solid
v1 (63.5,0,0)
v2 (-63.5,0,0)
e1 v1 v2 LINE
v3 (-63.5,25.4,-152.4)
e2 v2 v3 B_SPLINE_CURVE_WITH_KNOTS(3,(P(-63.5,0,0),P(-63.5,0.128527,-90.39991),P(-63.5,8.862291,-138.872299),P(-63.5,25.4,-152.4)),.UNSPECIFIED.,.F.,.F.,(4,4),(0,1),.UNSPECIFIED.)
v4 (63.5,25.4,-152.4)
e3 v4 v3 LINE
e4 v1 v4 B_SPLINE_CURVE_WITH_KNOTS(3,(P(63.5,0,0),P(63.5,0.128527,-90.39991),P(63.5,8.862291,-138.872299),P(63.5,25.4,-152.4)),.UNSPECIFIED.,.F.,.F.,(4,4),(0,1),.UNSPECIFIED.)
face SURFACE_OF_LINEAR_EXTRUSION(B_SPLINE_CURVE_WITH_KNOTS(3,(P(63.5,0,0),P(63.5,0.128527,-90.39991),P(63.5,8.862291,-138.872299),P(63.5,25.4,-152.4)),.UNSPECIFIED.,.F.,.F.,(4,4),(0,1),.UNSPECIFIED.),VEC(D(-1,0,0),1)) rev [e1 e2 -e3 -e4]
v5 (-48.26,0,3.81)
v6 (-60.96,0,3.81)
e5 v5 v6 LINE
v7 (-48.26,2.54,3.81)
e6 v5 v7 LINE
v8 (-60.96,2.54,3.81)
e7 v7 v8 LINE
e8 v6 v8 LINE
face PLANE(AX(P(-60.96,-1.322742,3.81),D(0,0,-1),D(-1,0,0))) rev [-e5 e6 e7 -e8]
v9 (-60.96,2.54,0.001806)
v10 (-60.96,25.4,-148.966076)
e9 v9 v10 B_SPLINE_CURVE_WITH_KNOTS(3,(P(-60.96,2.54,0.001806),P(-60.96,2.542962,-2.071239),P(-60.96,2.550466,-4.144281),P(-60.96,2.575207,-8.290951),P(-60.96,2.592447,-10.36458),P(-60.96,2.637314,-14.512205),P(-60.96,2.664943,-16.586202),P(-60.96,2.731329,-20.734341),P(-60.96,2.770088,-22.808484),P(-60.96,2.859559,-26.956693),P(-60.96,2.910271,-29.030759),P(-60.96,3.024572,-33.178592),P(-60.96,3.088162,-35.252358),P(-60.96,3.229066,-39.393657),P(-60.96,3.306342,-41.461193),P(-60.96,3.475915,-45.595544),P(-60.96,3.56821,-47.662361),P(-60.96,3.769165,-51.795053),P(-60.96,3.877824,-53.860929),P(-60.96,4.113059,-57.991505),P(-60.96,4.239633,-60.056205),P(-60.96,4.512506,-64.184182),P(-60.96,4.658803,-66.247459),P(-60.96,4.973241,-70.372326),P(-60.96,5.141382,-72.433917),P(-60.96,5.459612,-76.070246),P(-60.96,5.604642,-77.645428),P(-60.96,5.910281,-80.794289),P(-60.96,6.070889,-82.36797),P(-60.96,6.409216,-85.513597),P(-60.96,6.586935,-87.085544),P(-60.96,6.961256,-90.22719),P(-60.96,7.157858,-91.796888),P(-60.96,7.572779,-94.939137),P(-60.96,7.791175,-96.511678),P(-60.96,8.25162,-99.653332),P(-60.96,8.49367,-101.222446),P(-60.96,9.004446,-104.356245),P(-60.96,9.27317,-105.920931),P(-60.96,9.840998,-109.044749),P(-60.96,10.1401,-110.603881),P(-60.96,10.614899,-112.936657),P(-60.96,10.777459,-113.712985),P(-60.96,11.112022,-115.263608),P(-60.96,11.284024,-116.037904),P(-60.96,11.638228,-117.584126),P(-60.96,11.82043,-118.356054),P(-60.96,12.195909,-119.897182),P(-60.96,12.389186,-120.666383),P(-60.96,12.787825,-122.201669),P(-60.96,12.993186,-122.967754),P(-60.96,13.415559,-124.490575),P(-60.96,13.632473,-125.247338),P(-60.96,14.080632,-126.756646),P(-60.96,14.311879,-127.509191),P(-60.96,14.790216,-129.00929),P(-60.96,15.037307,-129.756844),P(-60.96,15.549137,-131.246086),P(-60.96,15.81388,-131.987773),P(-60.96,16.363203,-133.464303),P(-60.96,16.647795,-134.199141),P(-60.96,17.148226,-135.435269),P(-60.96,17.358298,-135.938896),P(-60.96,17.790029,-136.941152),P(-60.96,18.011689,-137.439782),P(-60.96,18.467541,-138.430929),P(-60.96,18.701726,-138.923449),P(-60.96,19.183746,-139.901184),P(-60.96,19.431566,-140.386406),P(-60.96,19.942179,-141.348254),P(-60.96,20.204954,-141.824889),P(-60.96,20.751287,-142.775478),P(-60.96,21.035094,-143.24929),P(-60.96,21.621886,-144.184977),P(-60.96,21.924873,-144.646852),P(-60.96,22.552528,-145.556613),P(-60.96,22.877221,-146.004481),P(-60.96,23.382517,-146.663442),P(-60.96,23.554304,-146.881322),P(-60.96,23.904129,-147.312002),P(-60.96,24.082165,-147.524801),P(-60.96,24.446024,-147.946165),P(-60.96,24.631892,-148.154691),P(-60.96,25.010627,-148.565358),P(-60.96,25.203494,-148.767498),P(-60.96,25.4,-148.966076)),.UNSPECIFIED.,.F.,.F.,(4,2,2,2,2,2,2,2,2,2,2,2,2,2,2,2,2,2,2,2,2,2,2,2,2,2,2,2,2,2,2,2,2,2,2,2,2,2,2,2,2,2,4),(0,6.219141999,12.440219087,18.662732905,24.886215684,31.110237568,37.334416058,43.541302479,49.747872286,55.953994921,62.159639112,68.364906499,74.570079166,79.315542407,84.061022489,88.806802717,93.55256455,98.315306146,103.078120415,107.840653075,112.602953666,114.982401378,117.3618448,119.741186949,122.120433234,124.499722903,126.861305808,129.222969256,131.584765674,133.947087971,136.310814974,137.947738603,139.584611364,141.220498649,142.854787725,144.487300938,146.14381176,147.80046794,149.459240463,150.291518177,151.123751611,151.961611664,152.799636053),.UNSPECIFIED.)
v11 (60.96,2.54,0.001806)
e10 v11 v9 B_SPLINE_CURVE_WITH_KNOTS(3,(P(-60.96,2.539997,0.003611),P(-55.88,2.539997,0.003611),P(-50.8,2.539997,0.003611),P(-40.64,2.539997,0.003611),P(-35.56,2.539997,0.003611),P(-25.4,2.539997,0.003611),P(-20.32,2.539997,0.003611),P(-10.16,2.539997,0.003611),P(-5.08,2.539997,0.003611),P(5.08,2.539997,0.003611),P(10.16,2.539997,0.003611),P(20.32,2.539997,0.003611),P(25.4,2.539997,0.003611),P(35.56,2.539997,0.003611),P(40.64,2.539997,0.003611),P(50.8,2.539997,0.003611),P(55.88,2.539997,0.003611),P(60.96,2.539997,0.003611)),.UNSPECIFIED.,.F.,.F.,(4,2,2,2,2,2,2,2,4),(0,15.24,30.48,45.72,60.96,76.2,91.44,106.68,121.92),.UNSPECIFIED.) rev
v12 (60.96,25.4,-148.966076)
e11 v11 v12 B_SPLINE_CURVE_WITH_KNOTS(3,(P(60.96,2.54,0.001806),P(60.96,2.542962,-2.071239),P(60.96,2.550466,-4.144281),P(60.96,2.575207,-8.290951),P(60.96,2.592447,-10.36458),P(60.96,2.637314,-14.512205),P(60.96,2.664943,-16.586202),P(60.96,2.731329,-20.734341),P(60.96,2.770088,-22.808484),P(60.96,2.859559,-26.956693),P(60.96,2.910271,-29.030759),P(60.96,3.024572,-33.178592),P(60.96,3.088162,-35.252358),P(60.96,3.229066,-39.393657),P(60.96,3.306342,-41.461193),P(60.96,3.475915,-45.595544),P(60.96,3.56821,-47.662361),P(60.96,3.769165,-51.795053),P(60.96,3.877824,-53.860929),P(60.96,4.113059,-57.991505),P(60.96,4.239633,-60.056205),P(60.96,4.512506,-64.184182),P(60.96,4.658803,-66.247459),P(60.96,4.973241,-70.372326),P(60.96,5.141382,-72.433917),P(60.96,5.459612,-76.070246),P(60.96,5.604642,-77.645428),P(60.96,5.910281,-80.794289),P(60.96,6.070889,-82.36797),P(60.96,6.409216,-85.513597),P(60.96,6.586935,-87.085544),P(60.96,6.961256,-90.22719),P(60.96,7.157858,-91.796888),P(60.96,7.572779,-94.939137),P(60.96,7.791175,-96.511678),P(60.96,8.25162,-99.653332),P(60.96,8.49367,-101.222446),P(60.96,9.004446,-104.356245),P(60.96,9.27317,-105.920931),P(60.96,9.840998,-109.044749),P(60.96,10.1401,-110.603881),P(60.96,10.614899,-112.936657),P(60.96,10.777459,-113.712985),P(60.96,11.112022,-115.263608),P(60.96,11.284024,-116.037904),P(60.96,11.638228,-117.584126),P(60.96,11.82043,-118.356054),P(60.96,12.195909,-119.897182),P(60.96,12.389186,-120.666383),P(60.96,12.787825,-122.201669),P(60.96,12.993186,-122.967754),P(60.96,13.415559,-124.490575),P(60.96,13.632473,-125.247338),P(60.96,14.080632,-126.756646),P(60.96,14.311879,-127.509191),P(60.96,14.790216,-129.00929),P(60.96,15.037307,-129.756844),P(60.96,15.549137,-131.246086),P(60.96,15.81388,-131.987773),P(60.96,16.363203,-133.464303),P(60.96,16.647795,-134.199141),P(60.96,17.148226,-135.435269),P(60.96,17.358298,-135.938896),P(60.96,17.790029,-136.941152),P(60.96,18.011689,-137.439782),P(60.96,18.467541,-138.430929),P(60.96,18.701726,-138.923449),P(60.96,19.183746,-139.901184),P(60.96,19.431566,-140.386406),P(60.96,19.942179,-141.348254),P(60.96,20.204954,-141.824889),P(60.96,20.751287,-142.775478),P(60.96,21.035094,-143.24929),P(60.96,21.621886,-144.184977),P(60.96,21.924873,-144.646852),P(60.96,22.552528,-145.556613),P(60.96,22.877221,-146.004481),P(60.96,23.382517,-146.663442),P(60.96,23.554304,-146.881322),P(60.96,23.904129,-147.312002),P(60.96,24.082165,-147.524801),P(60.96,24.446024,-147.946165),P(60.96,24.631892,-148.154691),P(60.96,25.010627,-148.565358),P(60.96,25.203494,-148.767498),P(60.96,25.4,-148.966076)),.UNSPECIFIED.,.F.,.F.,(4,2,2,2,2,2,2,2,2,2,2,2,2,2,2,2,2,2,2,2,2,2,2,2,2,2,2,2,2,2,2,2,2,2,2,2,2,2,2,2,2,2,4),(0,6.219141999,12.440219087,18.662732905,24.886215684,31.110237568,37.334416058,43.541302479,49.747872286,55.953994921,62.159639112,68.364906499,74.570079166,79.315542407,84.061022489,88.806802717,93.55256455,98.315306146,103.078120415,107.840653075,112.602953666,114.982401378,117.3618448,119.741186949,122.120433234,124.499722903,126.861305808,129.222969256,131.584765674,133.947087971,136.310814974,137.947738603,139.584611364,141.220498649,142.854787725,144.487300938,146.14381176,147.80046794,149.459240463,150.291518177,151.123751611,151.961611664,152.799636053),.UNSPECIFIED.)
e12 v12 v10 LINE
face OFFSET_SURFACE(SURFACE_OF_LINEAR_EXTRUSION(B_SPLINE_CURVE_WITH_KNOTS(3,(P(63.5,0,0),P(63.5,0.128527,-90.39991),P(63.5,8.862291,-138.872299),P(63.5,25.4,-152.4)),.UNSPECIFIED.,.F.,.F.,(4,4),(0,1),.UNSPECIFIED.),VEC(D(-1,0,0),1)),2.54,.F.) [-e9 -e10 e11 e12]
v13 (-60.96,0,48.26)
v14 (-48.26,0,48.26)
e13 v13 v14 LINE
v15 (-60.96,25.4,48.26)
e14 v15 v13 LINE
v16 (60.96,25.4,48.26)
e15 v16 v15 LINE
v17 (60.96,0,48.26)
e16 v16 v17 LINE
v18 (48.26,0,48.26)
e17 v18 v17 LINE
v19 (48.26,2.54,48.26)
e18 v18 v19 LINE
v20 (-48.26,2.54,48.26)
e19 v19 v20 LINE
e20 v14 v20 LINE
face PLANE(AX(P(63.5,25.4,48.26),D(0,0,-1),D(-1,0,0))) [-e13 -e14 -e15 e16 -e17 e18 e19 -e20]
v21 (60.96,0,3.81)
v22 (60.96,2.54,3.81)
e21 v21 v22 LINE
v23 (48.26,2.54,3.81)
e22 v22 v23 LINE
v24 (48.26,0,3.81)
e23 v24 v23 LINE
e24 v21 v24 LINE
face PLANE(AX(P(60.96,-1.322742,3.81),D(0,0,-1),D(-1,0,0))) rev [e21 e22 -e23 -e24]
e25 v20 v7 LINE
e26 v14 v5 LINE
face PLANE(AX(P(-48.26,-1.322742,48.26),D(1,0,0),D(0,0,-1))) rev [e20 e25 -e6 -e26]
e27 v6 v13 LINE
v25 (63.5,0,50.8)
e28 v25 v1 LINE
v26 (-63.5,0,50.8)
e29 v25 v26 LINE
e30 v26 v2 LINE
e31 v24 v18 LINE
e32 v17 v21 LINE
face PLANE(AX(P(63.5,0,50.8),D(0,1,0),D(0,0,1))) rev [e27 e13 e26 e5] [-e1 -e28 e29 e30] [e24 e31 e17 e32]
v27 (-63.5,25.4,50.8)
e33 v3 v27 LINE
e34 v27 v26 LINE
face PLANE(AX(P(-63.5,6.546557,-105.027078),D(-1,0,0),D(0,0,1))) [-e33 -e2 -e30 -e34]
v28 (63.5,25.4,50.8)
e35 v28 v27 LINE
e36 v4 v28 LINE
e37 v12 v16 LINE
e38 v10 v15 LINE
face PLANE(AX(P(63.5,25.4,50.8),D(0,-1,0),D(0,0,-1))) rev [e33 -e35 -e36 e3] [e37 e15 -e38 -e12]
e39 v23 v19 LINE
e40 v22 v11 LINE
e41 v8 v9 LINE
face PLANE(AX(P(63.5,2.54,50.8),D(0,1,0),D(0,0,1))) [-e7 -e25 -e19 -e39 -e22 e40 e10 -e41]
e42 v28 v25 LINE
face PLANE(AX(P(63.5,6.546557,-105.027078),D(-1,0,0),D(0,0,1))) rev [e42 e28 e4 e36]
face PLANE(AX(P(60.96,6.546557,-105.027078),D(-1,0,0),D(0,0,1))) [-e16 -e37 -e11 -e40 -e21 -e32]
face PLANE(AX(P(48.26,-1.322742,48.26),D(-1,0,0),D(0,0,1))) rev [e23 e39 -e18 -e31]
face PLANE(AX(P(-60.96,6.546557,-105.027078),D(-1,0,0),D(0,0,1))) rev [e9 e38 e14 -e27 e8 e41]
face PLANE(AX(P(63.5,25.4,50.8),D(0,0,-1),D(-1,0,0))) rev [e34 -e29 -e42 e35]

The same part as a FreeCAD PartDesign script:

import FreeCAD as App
import Part
import Sketcher
from FreeCAD import Vector
Q = App.Units.Quantity


def faces_at(feature, points):
    """Names of the faces that lie closest to the given points."""
    faces = feature.Shape.Faces
    near = lambda p: min(range(len(faces)), key=lambda i: faces[i].distToShape(Part.Vertex(*p))[0])
    return sorted({f"Face{near(p) + 1}" for p in points})

doc = App.newDocument("Part")
body = doc.addObject("PartDesign::Body", "Body")

# Sketch on YZ plane
sketch1 = body.newObject("Sketcher::SketchObject", "Sketch")
sketch1.AttachmentSupport = (doc.getObject("YZ_Plane"), [""])
sketch1.MapMode = "FlatFace"
sketch1.addGeometry([
    Part.LineSegment(Vector(25.4, 50.8, 0), Vector(0, 50.8, 0)),
    Part.LineSegment(Vector(0, 50.8, 0), Vector(0, 0, 0)),
    Part.BSplineCurve([Vector(0, 0, 0), Vector(0.128527, -90.39991, 0), Vector(8.862291, -138.872299, 0), Vector(25.4, -152.4, 0)], [4, 4], [0, 1], False, 3, [1, 1, 1, 1], False),
    Part.LineSegment(Vector(25.4, -152.4, 0), Vector(25.4, 50.8, 0)),
], False)
sketch1.addConstraint([
    Sketcher.Constraint("Block", 2),
    Sketcher.Constraint("Coincident", 0, 2, 1, 1),
    Sketcher.Constraint("Coincident", 1, 2, 2, 1),
    Sketcher.Constraint("Coincident", 2, 2, 3, 1),
    Sketcher.Constraint("Coincident", 3, 2, 0, 1),
    Sketcher.Constraint("Horizontal", 0),
    Sketcher.Constraint("Vertical", 1),
    Sketcher.Constraint("Vertical", 3),
    Sketcher.Constraint("DistanceY", 1, 2, 1, 1, Q("2 in")),
])
pad1 = body.newObject("PartDesign::Pad", "Pad")
pad1.Profile = sketch1
pad1.Length = Q("5 in")
pad1.Midplane = True
doc.recompute()

thickness = body.newObject("PartDesign::Thickness", "Thickness")
thickness.Base = (pad1, faces_at(pad1, [(0, 25.4, -50.8)]))
thickness.Value = Q("0.1 in")
thickness.Reversed = True
thickness.Join = "Intersection"

# Sketch on XZ plane
sketch2 = body.newObject("Sketcher::SketchObject", "Sketch001")
sketch2.AttachmentSupport = (doc.getObject("XZ_Plane"), [""])
sketch2.MapMode = "FlatFace"
sketch2.AttachmentOffset = App.Placement(Vector(0, 0, -1 * 25.4), App.Rotation())
sketch2.addGeometry([
    Part.LineSegment(Vector(-61, 4, 0), Vector(-61, 48, 0)),  # 0
    Part.LineSegment(Vector(-61, 48, 0), Vector(-48, 48, 0)),  # 1
    Part.LineSegment(Vector(-48, 48, 0), Vector(-48, 4, 0)),  # 2
    Part.LineSegment(Vector(-48, 4, 0), Vector(-61, 4, 0)),  # 3
    Part.LineSegment(Vector(48, 4, 0), Vector(48, 48, 0)),  # 4
    Part.LineSegment(Vector(48, 48, 0), Vector(61, 48, 0)),  # 5
    Part.LineSegment(Vector(61, 48, 0), Vector(61, 4, 0)),  # 6
    Part.LineSegment(Vector(61, 4, 0), Vector(48, 4, 0)),  # 7
], False)
sketch2.addConstraint([
    Sketcher.Constraint("Coincident", 0, 2, 1, 1),
    Sketcher.Constraint("Coincident", 1, 2, 2, 1),
    Sketcher.Constraint("Coincident", 2, 2, 3, 1),
    Sketcher.Constraint("Coincident", 3, 2, 0, 1),
    Sketcher.Constraint("Coincident", 4, 2, 5, 1),
    Sketcher.Constraint("Coincident", 5, 2, 6, 1),
    Sketcher.Constraint("Coincident", 6, 2, 7, 1),
    Sketcher.Constraint("Coincident", 7, 2, 4, 1),
    Sketcher.Constraint("Vertical", 0),
    Sketcher.Constraint("Horizontal", 1),
    Sketcher.Constraint("Vertical", 2),
    Sketcher.Constraint("Horizontal", 3),
    Sketcher.Constraint("Vertical", 4),
    Sketcher.Constraint("Horizontal", 5),
    Sketcher.Constraint("Vertical", 6),
    Sketcher.Constraint("Horizontal", 7),
    Sketcher.Constraint("Symmetric", 1, 2, 4, 2, -2),
    Sketcher.Constraint("Symmetric", 3, 2, 6, 2, -2),
    Sketcher.Constraint("DistanceX", 1, 1, 1, 2, Q("0.5 in")),
    Sketcher.Constraint("DistanceY", 0, 1, 0, 2, Q("1.75 in")),
    Sketcher.Constraint("DistanceX", 0, 2, -1, 1, Q("2.4 in")),
    Sketcher.Constraint("DistanceY", -1, 1, 0, 2, Q("1.9 in")),
])
pocket1 = body.newObject("PartDesign::Pocket", "Pocket")
pocket1.Profile = sketch2
pocket1.Type = "ThroughAll"
pocket1.Reversed = True

doc.recompute()
